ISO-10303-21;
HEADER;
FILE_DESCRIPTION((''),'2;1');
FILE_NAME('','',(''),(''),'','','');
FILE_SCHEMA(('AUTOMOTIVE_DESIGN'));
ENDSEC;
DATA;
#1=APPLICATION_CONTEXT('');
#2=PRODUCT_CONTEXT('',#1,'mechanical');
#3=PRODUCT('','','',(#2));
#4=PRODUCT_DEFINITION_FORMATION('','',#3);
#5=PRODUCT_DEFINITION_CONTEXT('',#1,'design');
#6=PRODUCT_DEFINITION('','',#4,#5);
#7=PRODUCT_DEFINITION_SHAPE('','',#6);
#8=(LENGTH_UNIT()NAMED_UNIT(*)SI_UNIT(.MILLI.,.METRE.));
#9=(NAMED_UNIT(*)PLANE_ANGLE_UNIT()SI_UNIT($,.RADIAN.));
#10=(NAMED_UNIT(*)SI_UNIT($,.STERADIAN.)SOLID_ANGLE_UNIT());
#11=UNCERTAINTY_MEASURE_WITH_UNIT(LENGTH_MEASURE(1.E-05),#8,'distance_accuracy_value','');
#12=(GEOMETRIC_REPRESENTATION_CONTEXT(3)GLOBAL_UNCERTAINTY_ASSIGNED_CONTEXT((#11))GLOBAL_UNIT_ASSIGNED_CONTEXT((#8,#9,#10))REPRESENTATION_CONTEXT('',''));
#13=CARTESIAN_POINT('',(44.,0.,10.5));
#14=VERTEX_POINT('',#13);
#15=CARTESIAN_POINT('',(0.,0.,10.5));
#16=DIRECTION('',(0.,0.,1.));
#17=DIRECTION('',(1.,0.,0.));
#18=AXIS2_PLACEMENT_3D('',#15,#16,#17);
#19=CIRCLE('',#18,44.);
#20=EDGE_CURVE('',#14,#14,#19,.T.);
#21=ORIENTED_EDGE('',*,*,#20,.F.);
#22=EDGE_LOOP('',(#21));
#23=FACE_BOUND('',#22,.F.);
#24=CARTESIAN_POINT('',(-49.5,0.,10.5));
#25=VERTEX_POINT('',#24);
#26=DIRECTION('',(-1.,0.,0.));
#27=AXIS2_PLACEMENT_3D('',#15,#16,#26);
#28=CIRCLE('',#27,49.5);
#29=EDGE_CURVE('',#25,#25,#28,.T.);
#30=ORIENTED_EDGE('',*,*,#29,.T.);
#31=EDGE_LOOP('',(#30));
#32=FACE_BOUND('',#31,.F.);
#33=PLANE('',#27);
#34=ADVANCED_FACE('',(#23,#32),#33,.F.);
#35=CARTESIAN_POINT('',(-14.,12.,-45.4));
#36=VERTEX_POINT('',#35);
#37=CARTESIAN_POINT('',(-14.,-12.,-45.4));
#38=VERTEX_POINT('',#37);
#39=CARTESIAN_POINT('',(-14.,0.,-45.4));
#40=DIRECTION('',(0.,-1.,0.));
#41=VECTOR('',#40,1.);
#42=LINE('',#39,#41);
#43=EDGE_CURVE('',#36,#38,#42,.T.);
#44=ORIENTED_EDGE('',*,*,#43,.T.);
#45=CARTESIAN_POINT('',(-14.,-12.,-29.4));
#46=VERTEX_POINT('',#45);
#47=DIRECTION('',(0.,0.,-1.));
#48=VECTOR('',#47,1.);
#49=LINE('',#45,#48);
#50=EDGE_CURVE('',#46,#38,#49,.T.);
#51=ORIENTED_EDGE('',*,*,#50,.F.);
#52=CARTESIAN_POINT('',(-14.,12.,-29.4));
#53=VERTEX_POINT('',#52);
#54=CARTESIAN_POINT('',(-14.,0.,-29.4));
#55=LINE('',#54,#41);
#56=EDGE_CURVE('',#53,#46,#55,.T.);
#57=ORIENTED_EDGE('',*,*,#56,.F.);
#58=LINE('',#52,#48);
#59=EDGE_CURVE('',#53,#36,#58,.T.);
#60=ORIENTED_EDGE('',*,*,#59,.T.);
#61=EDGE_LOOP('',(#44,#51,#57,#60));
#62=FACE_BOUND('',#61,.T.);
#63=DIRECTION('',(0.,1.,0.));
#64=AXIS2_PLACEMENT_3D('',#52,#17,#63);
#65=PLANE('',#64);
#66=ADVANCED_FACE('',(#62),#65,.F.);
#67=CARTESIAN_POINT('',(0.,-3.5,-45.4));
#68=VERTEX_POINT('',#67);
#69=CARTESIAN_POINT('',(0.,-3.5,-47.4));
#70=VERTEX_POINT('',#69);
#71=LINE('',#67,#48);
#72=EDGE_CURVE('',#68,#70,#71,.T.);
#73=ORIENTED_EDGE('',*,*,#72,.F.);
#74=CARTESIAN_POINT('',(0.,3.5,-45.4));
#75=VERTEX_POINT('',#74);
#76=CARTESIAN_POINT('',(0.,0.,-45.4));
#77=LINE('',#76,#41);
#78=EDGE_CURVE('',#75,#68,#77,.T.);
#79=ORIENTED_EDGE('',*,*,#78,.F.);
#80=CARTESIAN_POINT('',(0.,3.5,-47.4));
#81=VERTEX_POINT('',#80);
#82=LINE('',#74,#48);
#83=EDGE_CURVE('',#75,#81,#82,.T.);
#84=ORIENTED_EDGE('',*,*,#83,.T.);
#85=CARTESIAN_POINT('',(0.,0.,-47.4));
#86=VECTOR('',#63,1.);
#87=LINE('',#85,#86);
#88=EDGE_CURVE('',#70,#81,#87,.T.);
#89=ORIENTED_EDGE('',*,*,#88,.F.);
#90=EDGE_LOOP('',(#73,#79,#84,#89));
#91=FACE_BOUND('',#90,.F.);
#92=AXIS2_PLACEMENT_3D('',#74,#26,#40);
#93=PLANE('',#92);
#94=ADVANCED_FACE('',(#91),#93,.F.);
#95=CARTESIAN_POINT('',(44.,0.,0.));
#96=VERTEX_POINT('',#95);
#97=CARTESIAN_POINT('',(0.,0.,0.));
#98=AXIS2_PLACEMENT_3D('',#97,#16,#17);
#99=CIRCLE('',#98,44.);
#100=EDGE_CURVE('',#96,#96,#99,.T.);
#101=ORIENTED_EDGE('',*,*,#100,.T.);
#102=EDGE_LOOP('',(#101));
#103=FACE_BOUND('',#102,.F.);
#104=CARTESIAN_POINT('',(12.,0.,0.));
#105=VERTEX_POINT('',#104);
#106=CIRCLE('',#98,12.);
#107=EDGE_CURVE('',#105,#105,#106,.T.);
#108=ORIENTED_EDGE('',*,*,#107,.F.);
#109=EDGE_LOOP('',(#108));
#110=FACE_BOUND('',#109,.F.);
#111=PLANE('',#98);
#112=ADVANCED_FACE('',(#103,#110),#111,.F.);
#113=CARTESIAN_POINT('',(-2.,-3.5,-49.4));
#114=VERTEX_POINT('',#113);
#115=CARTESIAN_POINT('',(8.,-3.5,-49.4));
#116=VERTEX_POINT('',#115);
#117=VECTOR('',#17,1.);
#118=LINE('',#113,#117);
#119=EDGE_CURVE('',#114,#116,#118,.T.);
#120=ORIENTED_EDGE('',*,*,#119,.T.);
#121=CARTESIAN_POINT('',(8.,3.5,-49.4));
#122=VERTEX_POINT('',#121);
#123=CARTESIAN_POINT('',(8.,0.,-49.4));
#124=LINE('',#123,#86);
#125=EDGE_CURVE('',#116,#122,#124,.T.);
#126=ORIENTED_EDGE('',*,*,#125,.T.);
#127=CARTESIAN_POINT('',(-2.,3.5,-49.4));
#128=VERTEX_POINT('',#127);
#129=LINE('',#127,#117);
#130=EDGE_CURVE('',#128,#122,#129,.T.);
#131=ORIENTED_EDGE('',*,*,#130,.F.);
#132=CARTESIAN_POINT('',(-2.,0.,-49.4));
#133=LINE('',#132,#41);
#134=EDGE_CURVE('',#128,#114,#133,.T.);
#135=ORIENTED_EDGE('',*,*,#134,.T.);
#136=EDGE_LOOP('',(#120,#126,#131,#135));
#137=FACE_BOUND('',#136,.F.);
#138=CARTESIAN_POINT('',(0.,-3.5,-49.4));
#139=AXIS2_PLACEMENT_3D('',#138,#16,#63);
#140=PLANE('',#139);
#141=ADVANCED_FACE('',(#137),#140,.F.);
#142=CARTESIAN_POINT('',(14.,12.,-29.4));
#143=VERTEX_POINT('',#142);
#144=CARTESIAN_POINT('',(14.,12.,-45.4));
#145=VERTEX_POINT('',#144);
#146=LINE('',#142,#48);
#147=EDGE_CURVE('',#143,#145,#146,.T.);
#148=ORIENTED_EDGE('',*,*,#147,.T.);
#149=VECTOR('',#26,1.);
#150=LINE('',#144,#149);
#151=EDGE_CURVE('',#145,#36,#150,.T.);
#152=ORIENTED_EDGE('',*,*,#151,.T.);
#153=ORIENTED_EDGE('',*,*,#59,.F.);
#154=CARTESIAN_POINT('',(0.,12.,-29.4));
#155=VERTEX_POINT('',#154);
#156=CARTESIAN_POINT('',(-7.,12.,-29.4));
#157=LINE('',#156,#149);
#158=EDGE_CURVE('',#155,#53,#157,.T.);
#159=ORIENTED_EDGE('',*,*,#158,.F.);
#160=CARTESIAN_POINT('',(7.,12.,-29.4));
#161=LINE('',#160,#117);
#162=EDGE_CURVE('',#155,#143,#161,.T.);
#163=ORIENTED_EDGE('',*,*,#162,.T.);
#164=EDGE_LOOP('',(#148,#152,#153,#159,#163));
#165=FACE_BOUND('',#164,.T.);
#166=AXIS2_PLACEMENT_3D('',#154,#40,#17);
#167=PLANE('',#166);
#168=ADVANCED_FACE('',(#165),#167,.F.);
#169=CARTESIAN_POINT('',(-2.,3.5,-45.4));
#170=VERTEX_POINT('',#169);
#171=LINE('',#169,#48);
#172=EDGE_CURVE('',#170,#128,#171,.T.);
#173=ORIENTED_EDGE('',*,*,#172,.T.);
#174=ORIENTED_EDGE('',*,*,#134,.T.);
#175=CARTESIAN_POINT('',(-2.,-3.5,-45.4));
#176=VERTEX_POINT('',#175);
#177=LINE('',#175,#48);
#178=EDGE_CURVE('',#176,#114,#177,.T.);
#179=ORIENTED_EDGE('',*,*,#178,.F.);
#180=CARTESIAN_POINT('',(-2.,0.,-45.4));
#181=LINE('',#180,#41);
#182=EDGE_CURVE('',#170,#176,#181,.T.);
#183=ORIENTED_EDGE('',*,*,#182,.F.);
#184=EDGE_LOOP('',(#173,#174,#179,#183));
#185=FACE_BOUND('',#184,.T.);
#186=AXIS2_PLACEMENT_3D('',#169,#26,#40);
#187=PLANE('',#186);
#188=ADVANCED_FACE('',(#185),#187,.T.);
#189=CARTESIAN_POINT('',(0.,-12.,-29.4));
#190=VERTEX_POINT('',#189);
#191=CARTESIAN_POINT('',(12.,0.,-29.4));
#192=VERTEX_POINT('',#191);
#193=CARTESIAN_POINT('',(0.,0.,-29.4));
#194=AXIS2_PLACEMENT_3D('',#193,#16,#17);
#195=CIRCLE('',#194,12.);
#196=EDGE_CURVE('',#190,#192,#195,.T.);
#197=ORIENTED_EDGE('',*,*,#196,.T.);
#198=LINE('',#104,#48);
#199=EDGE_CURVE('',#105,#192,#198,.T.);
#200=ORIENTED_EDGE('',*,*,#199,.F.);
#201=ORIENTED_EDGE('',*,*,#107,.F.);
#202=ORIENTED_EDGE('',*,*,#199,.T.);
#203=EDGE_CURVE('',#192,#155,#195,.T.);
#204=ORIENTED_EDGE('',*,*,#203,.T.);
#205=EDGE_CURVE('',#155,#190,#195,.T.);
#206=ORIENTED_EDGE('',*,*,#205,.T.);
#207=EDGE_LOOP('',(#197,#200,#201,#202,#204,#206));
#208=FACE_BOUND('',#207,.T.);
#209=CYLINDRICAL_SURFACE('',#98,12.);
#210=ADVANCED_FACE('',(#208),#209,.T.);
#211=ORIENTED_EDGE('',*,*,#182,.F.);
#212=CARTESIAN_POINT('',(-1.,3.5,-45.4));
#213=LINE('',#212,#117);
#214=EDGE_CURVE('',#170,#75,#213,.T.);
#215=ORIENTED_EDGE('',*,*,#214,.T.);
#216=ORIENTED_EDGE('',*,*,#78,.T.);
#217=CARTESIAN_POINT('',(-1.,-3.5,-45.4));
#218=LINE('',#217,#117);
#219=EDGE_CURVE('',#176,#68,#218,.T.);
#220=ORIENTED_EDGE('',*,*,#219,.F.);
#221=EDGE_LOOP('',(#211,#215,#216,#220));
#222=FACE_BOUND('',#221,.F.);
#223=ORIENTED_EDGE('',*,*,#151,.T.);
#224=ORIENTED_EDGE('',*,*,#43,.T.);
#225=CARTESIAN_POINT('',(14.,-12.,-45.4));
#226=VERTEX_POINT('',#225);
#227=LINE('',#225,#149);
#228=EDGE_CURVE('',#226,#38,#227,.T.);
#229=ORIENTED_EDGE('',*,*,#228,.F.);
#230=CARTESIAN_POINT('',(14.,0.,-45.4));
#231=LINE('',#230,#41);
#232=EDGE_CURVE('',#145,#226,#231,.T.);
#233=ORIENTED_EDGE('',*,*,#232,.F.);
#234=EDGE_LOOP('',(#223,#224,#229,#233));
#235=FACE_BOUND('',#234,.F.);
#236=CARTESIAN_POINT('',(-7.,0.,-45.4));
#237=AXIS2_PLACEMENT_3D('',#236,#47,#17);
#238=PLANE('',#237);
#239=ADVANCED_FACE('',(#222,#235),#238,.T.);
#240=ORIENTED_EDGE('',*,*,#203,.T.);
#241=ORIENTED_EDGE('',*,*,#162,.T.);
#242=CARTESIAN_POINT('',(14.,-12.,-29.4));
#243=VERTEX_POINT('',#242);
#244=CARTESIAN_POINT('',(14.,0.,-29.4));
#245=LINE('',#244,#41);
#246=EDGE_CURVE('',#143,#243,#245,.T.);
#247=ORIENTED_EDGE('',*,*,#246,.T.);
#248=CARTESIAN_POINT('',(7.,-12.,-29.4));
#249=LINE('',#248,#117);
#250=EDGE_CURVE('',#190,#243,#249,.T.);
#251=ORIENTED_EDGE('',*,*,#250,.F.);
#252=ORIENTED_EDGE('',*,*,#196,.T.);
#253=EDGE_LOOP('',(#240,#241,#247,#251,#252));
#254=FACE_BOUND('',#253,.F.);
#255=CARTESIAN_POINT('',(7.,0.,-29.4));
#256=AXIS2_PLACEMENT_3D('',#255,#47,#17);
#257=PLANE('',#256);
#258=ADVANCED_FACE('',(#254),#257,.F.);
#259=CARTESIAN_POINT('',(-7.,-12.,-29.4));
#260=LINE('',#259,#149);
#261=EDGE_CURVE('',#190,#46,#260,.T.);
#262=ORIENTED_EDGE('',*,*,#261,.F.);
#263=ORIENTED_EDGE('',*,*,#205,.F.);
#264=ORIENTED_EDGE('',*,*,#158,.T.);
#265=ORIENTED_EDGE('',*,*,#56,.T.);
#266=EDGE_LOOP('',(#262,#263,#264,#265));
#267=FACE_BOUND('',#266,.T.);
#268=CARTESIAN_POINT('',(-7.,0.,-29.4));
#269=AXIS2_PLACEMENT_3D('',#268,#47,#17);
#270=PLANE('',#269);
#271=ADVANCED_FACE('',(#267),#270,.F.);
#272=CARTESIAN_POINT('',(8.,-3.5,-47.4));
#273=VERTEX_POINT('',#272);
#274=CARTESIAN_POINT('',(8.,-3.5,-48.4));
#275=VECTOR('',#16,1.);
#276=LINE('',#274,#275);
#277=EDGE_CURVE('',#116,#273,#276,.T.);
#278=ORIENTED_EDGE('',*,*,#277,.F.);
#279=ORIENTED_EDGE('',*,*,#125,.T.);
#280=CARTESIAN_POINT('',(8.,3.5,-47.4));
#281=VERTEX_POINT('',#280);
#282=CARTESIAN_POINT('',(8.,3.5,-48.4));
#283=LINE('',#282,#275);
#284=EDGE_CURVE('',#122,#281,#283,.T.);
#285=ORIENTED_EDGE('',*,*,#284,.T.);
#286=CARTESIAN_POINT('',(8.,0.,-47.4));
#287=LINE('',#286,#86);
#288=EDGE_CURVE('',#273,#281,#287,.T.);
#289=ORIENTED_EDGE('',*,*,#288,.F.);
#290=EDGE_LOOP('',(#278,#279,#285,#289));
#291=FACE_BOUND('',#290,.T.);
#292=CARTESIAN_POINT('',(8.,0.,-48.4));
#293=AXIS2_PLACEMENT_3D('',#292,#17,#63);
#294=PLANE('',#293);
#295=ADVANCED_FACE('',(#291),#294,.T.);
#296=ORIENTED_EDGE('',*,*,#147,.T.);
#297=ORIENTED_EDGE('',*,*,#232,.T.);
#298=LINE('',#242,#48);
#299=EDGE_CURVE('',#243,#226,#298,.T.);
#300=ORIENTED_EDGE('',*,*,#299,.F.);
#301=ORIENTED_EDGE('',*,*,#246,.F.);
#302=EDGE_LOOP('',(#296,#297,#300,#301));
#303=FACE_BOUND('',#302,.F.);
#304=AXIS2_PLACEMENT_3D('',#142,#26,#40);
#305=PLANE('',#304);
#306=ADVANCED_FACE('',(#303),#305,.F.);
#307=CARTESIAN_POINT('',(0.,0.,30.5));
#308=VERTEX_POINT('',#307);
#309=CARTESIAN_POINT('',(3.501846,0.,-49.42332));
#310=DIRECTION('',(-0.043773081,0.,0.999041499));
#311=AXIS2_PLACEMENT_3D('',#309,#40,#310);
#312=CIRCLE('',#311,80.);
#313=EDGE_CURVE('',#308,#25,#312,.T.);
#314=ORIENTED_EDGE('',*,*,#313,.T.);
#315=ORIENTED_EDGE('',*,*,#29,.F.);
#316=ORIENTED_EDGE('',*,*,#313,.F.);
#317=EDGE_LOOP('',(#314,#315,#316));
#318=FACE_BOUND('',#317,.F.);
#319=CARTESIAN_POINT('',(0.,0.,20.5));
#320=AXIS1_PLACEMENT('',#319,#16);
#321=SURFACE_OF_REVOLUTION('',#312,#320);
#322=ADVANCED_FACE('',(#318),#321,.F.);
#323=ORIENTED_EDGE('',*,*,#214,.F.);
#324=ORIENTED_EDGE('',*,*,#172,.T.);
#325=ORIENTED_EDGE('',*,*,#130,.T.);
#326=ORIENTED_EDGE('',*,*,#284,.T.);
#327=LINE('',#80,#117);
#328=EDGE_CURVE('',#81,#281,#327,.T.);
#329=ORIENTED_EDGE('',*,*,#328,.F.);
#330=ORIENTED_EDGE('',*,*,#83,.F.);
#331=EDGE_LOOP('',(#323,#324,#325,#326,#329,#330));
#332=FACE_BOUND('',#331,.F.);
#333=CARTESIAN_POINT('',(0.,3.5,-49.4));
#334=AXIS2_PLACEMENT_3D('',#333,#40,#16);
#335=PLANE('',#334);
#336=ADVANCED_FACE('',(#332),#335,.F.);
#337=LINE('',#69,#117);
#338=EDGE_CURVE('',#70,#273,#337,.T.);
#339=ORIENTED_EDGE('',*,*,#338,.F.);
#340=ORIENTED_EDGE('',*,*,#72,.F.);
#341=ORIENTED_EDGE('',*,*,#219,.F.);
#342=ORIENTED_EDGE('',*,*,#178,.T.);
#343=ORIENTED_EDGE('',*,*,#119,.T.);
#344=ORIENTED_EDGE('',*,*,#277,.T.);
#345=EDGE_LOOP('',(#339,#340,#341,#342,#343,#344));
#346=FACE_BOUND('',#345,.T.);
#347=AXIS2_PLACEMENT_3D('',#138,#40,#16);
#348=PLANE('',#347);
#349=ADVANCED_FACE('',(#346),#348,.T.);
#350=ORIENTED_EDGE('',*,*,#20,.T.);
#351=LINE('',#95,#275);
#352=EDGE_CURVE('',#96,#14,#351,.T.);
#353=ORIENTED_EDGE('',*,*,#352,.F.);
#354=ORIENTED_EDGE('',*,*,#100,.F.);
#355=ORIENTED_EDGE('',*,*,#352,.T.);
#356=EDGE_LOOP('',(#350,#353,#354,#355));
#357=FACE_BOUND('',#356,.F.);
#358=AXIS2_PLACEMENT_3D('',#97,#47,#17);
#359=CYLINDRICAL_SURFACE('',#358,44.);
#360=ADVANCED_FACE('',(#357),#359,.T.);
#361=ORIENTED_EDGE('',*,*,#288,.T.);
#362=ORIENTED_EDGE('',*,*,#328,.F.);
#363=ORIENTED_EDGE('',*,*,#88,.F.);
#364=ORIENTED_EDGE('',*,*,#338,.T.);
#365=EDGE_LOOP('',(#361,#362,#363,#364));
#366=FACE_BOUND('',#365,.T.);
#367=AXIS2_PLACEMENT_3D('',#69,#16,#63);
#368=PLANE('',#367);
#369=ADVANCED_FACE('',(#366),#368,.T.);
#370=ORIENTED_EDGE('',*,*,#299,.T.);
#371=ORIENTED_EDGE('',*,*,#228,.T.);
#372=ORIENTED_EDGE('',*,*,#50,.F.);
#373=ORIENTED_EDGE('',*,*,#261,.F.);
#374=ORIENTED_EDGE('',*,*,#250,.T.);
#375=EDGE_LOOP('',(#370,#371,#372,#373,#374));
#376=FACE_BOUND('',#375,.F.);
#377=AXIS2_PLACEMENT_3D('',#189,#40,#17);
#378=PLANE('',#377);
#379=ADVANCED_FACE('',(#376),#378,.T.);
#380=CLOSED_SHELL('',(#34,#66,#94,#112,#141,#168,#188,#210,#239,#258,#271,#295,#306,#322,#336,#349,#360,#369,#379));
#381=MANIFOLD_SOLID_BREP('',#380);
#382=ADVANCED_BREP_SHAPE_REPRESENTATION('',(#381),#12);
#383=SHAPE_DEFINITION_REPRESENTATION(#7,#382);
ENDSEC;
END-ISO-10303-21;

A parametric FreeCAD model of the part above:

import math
import FreeCAD as App
import Part
import Sketcher
from FreeCAD import Vector
Q = App.Units.Quantity

doc = App.newDocument("Part")
body = doc.addObject("PartDesign::Body", "Body")

sketch1 = body.newObject("Sketcher::SketchObject", "Sketch")
sketch1.AttachmentSupport = (doc.getObject("XY_Plane"), [""])
sketch1.MapMode = "FlatFace"
sketch1.addGeometry(Part.Circle(Vector(0, 0, 0), Vector(0, 0, 1), 12), False)
sketch1.addConstraint([
    Sketcher.Constraint("Coincident", 0, 3, -1, 1),
    Sketcher.Constraint("Diameter", 0, Q("24 mm")),
])
pad1 = body.newObject("PartDesign::Pad", "Pad")
pad1.Profile = sketch1
pad1.Length = 29.4
pad1.Reversed = True

sketch2 = body.newObject("Sketcher::SketchObject", "Sketch001")
sketch2.AttachmentSupport = (doc.getObject("XY_Plane"), [""])
sketch2.MapMode = "FlatFace"
sketch2.addGeometry(Part.Circle(Vector(0, 0, 0), Vector(0, 0, 1), 44), False)
sketch2.addConstraint([
    Sketcher.Constraint("Coincident", 0, 3, -1, 1),
    Sketcher.Constraint("Diameter", 0, Q("88 mm")),
])
pad2 = body.newObject("PartDesign::Pad", "Pad001")
pad2.Profile = sketch2
pad2.Length = 10.5

sketch3 = body.newObject("Sketcher::SketchObject", "Sketch002")
sketch3.AttachmentSupport = (doc.getObject("XZ_Plane"), [""])
sketch3.MapMode = "FlatFace"
sketch3.addGeometry([
    Part.LineSegment(Vector(-50, 10, 0), Vector(0, 10, 0)),
    Part.LineSegment(Vector(0, 10, 0), Vector(0, 30, 0)),
    Part.ArcOfCircle(Part.Circle(Vector(4, -49, 0), Vector(0, 0, 1), 80), math.radians(93), math.radians(131)),
], False)
sketch3.addConstraint([
    Sketcher.Constraint("Coincident", 0, 2, 1, 1),
    Sketcher.Constraint("Coincident", 1, 2, 2, 1),
    Sketcher.Constraint("Coincident", 2, 2, 0, 1),
    Sketcher.Constraint("Horizontal", 0),
    Sketcher.Constraint("Vertical", 1),
    Sketcher.Constraint("PointOnObject", 0, 2, -2),
    Sketcher.Constraint("Radius", 2, Q("80 mm")),
    Sketcher.Constraint("DistanceY", 1, 1, 1, 2, Q("20 mm")),
    Sketcher.Constraint("DistanceX", 0, 1, 0, 2, Q("49.5 mm")),
    Sketcher.Constraint("DistanceY", -1, 1, 0, 2, Q("10.5 mm")),
])
revolution = body.newObject("PartDesign::Revolution", "Revolution")
revolution.Profile = sketch3
revolution.ReferenceAxis = (sketch3, ["V_Axis"])
revolution.Angle = 360
body2 = doc.addObject("PartDesign::Body", "Body001")

sketch4 = body2.newObject("Sketcher::SketchObject", "Sketch003")
sketch4.AttachmentSupport = (doc.getObject("XY_Plane001"), [""])
sketch4.MapMode = "FlatFace"
sketch4.AttachmentOffset = App.Placement(Vector(0, 0, -29.4), App.Rotation())
sketch4.addGeometry([
    Part.LineSegment(Vector(0, -12, 0), Vector(0, 12, 0)),
    Part.LineSegment(Vector(0, 12, 0), Vector(14, 12, 0)),
    Part.LineSegment(Vector(14, 12, 0), Vector(14, -12, 0)),
    Part.LineSegment(Vector(14, -12, 0), Vector(0, -12, 0)),
], False)
sketch4.addConstraint([
    Sketcher.Constraint("Coincident", 0, 2, 1, 1),
    Sketcher.Constraint("Coincident", 1, 2, 2, 1),
    Sketcher.Constraint("Coincident", 2, 2, 3, 1),
    Sketcher.Constraint("Coincident", 3, 2, 0, 1),
    Sketcher.Constraint("Vertical", 0),
    Sketcher.Constraint("Horizontal", 1),
    Sketcher.Constraint("Vertical", 2),
    Sketcher.Constraint("Horizontal", 3),
    Sketcher.Constraint("Symmetric", 0, 2, 3, 2, -1, 1),
    Sketcher.Constraint("DistanceX", 1, 1, 1, 2, Q("14 mm")),
    Sketcher.Constraint("DistanceY", 0, 1, 0, 2, Q("24 mm")),
])
pad3 = body2.newObject("PartDesign::Pad", "Pad002")
pad3.Profile = sketch4
pad3.Length = 16
pad3.Reversed = True
doc.recompute()

body3 = doc.addObject("PartDesign::Body", "Body002")
body3.BaseFeature = body2
boolean = body.newObject("PartDesign::Boolean", "Boolean")
boolean.Type = "Fuse"
boolean.addObjects([body3])
doc.recompute()

mirroring = doc.addObject("Part::Mirroring", "Mirroring")
mirroring.Source = body2
mirroring.Base = Vector(0, 0, -37.4)
mirroring.Normal = Vector(-1, 0, 0)
body4 = doc.addObject("PartDesign::Body", "Body003")
body4.BaseFeature = mirroring
boolean2 = body.newObject("PartDesign::Boolean", "Boolean001")
boolean2.Type = "Fuse"
boolean2.addObjects([body4])
doc.recompute()

sketch5 = body.newObject("Sketcher::SketchObject", "Sketch004")
sketch5.AttachmentSupport = (doc.getObject("XY_Plane"), [""])
sketch5.MapMode = "FlatFace"
sketch5.AttachmentOffset = App.Placement(Vector(0, 0, -45.4), App.Rotation())
sketch5.addGeometry([
    Part.LineSegment(Vector(-2, -3.5, 0), Vector(-2, 3.5, 0)),
    Part.LineSegment(Vector(-2, 3.5, 0), Vector(0, 3.5, 0)),
    Part.LineSegment(Vector(0, 3.5, 0), Vector(0, -3.5, 0)),
    Part.LineSegment(Vector(0, -3.5, 0), Vector(-2, -3.5, 0)),
], False)
sketch5.addConstraint([
    Sketcher.Constraint("Coincident", 0, 2, 1, 1),
    Sketcher.Constraint("Coincident", 1, 2, 2, 1),
    Sketcher.Constraint("Coincident", 2, 2, 3, 1),
    Sketcher.Constraint("Coincident", 3, 2, 0, 1),
    Sketcher.Constraint("Vertical", 0),
    Sketcher.Constraint("Horizontal", 1),
    Sketcher.Constraint("Vertical", 2),
    Sketcher.Constraint("Horizontal", 3),
    Sketcher.Constraint("Symmetric", 1, 2, 2, 2, -1, 1),
    Sketcher.Constraint("DistanceX", 1, 1, 1, 2, Q("2 mm")),
    Sketcher.Constraint("DistanceY", 0, 1, 0, 2, Q("7 mm")),
])
pad4 = body.newObject("PartDesign::Pad", "Pad003")
pad4.Profile = sketch5
pad4.Length = 4
pad4.Reversed = True

sketch6 = body.newObject("Sketcher::SketchObject", "Sketch005")
sketch6.AttachmentSupport = (doc.getObject("YZ_Plane"), [""])
sketch6.MapMode = "FlatFace"
sketch6.addGeometry([
    Part.LineSegment(Vector(-3.5, -47.4, 0), Vector(-3.5, -49.4, 0)),
    Part.LineSegment(Vector(-3.5, -49.4, 0), Vector(3.5, -49.4, 0)),
    Part.LineSegment(Vector(3.5, -49.4, 0), Vector(3.5, -47.4, 0)),
    Part.LineSegment(Vector(3.5, -47.4, 0), Vector(-3.5, -47.4, 0)),
], False)
sketch6.addConstraint([
    Sketcher.Constraint("Coincident", 0, 2, 1, 1),
    Sketcher.Constraint("Coincident", 1, 2, 2, 1),
    Sketcher.Constraint("Coincident", 2, 2, 3, 1),
    Sketcher.Constraint("Coincident", 3, 2, 0, 1),
    Sketcher.Constraint("Vertical", 0),
    Sketcher.Constraint("Horizontal", 1),
    Sketcher.Constraint("Vertical", 2),
    Sketcher.Constraint("Horizontal", 3),
    Sketcher.Constraint("DistanceX", 1, 1, 1, 2, Q("7 mm")),
    Sketcher.Constraint("DistanceY", 0, 2, 0, 1, Q("2 mm")),
    Sketcher.Constraint("DistanceX", 0, 2, -1, 1, Q("3.5 mm")),
    Sketcher.Constraint("DistanceY", 0, 2, -1, 1, Q("49.4 mm")),
])
pad5 = body.newObject("PartDesign::Pad", "Pad004")
pad5.Profile = sketch6
pad5.Length = 8
mirroring.Visibility = False

doc.recompute()
